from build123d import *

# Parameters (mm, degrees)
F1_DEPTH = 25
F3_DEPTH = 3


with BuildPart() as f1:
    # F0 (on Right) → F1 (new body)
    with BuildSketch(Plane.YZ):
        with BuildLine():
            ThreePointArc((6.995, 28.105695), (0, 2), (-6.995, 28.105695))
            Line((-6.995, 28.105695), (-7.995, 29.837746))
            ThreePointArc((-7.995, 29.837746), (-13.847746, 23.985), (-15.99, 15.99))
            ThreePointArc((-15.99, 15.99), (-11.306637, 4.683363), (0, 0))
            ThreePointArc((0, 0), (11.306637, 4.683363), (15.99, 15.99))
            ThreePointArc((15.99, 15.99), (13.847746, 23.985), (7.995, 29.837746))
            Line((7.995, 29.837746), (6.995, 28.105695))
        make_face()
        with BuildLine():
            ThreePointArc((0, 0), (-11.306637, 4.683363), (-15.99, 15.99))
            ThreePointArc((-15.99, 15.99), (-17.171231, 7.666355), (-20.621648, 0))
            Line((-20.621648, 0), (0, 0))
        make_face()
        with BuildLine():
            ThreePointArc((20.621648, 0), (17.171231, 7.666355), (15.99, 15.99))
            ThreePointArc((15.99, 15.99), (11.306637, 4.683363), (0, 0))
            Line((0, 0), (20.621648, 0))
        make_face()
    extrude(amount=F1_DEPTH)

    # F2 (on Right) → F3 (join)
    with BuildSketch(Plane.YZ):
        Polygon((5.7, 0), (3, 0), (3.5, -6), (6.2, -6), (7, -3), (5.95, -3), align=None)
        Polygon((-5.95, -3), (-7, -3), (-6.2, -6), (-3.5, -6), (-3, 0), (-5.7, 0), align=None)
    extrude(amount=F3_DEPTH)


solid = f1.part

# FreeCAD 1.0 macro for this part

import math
import FreeCAD as App
import Part
import Sketcher
Q = App.Units.Quantity

doc = App.newDocument("Part")
body = doc.addObject("PartDesign::Body", "Body")

sketch1 = body.newObject("Sketcher::SketchObject", "Sketch")
sketch1.AttachmentSupport = (doc.getObject("YZ_Plane"), [""])
sketch1.MapMode = "FlatFace"
sketch1.addGeometry(Part.ArcOfCircle(Part.Circle(App.Vector(0, 15.99, 0), App.Vector(0, 0, 1), 13.99), math.radians(120), math.radians(420)), False)
sketch1.addGeometry(Part.LineSegment(App.Vector(-6.995, 28.105695, 0), App.Vector(-7.995, 29.837746, 0)), False)
sketch1.addGeometry(Part.ArcOfCircle(Part.Circle(App.Vector(0, 15.99, 0), App.Vector(0, 0, 1), 15.99), math.radians(120.000001), math.radians(179.999998)), False)
sketch1.addGeometry(Part.ArcOfCircle(Part.Circle(App.Vector(-45.907231, 15.989997, 0), App.Vector(0, 0, 1), 29.917231), math.radians(-32.30828), math.radians(0.000006)), False)
sketch1.addGeometry(Part.LineSegment(App.Vector(-20.621648, 0, 0), App.Vector(20.621648, 0, 0)), False)
sketch1.addGeometry(Part.ArcOfCircle(Part.Circle(App.Vector(45.907231, 15.989997, 0), App.Vector(0, 0, 1), 29.917231), math.radians(179.999994), math.radians(212.30828)), False)
sketch1.addGeometry(Part.ArcOfCircle(Part.Circle(App.Vector(0, 15.99, 0), App.Vector(0, 0, 1), 15.99), math.radians(0.000002), math.radians(59.999999)), False)
sketch1.addGeometry(Part.LineSegment(App.Vector(7.995, 29.837746, 0), App.Vector(6.995, 28.105695, 0)), False)
sketch1.addConstraint(Sketcher.Constraint("Coincident", 0, 1, 1, 1))
sketch1.addConstraint(Sketcher.Constraint("Coincident", 1, 2, 2, 1))
sketch1.addConstraint(Sketcher.Constraint("Tangent", 2, 2, 3, 2))
sketch1.addConstraint(Sketcher.Constraint("Coincident", 3, 1, 4, 1))
sketch1.addConstraint(Sketcher.Constraint("Coincident", 4, 2, 5, 2))
sketch1.addConstraint(Sketcher.Constraint("Tangent", 5, 1, 6, 1))
sketch1.addConstraint(Sketcher.Constraint("Coincident", 6, 2, 7, 1))
sketch1.addConstraint(Sketcher.Constraint("Coincident", 7, 2, 0, 2))
sketch1.addConstraint(Sketcher.Constraint("Horizontal", 4))
sketch1.addConstraint(Sketcher.Constraint("Coincident", 2, 3, 0, 3))
sketch1.addConstraint(Sketcher.Constraint("Coincident", 6, 3, 0, 3))
sketch1.addConstraint(Sketcher.Constraint("Equal", 3, 5))
sketch1.addConstraint(Sketcher.Constraint("Equal", 2, 6))
sketch1.addConstraint(Sketcher.Constraint("Symmetric", 3, 1, 4, 2, -1, 1))
sketch1.addConstraint(Sketcher.Constraint("Symmetric", 1, 2, 6, 2, -2))
sketch1.addConstraint(Sketcher.Constraint("Horizontal", 6, 3, 2, 2))
sketch1.addConstraint(Sketcher.Constraint("Horizontal", 0, 1, 7, 2))
sketch1.addConstraint(Sketcher.Constraint("Angle", 1, Q("119.999997 deg")))
sketch1.addConstraint(Sketcher.Constraint("Radius", 0, 13.99))
sketch1.addConstraint(Sketcher.Constraint("Radius", 2, 15.99))
sketch1.addConstraint(Sketcher.Constraint("DistanceY", -1, 1, 0, 3, 15.99))
sketch1.addConstraint(Sketcher.Constraint("Radius", 3, 29.917231))
sketch1.addConstraint(Sketcher.Constraint("DistanceX", 0, 1, 6, 2, 14.99))
pad1 = body.newObject("PartDesign::Pad", "Pad")
pad1.Profile = sketch1
pad1.Length = 25

sketch2 = body.newObject("Sketcher::SketchObject", "Sketch001")
sketch2.AttachmentSupport = (doc.getObject("YZ_Plane"), [""])
sketch2.MapMode = "FlatFace"
sketch2.addGeometry(Part.LineSegment(App.Vector(5.7, 0, 0), App.Vector(3, 0, 0)), False)
sketch2.addGeometry(Part.LineSegment(App.Vector(3, 0, 0), App.Vector(3.5, -6, 0)), False)
sketch2.addGeometry(Part.LineSegment(App.Vector(3.5, -6, 0), App.Vector(6.2, -6, 0)), False)
sketch2.addGeometry(Part.LineSegment(App.Vector(6.2, -6, 0), App.Vector(7, -3, 0)), False)
sketch2.addGeometry(Part.LineSegment(App.Vector(7, -3, 0), App.Vector(5.95, -3, 0)), False)
sketch2.addGeometry(Part.LineSegment(App.Vector(5.95, -3, 0), App.Vector(5.7, 0, 0)), False)
sketch2.addGeometry(Part.LineSegment(App.Vector(-5.95, -3, 0), App.Vector(-7, -3, 0)), False)
sketch2.addGeometry(Part.LineSegment(App.Vector(-7, -3, 0), App.Vector(-6.2, -6, 0)), False)
sketch2.addGeometry(Part.LineSegment(App.Vector(-6.2, -6, 0), App.Vector(-3.5, -6, 0)), False)
sketch2.addGeometry(Part.LineSegment(App.Vector(-3.5, -6, 0), App.Vector(-3, 0, 0)), False)
sketch2.addGeometry(Part.LineSegment(App.Vector(-3, 0, 0), App.Vector(-5.7, 0, 0)), False)
sketch2.addGeometry(Part.LineSegment(App.Vector(-5.7, 0, 0), App.Vector(-5.95, -3, 0)), False)
sketch2.addConstraint(Sketcher.Constraint("Coincident", 0, 2, 1, 1))
sketch2.addConstraint(Sketcher.Constraint("Coincident", 1, 2, 2, 1))
sketch2.addConstraint(Sketcher.Constraint("Coincident", 2, 2, 3, 1))
sketch2.addConstraint(Sketcher.Constraint("Coincident", 3, 2, 4, 1))
sketch2.addConstraint(Sketcher.Constraint("Coincident", 4, 2, 5, 1))
sketch2.addConstraint(Sketcher.Constraint("Coincident", 5, 2, 0, 1))
sketch2.addConstraint(Sketcher.Constraint("Coincident", 6, 2, 7, 1))
sketch2.addConstraint(Sketcher.Constraint("Coincident", 7, 2, 8, 1))
sketch2.addConstraint(Sketcher.Constraint("Coincident", 8, 2, 9, 1))
sketch2.addConstraint(Sketcher.Constraint("Coincident", 9, 2, 10, 1))
sketch2.addConstraint(Sketcher.Constraint("Coincident", 10, 2, 11, 1))
sketch2.addConstraint(Sketcher.Constraint("Coincident", 11, 2, 6, 1))
sketch2.addConstraint(Sketcher.Constraint("Horizontal", 0))
sketch2.addConstraint(Sketcher.Constraint("Horizontal", 2))
sketch2.addConstraint(Sketcher.Constraint("Horizontal", 4))
sketch2.addConstraint(Sketcher.Constraint("Horizontal", 6))
sketch2.addConstraint(Sketcher.Constraint("Horizontal", 8))
sketch2.addConstraint(Sketcher.Constraint("Horizontal", 10))
sketch2.addConstraint(Sketcher.Constraint("Symmetric", 0, 2, 9, 2, -1, 1))
sketch2.addConstraint(Sketcher.Constraint("Symmetric", 3, 2, 6, 2, -2))
sketch2.addConstraint(Sketcher.Constraint("Symmetric", 2, 2, 7, 2, -2))
sketch2.addConstraint(Sketcher.Constraint("Symmetric", 5, 2, 10, 2, -2))
sketch2.addConstraint(Sketcher.Constraint("Parallel", 1, 5))
sketch2.addConstraint(Sketcher.Constraint("Parallel", 9, 11))
sketch2.addConstraint(Sketcher.Constraint("Equal", 0, 2))
sketch2.addConstraint(Sketcher.Constraint("Equal", 4, 6))
sketch2.addConstraint(Sketcher.Constraint("DistanceX", 0, 2, 0, 1, 2.7))
sketch2.addConstraint(Sketcher.Constraint("DistanceX", -1, 1, 0, 2, 3.0))
sketch2.addConstraint(Sketcher.Constraint("DistanceY", 1, 2, -1, 1, 6.0))
sketch2.addConstraint(Sketcher.Constraint("DistanceX", -1, 1, 3, 2, 7.0))
sketch2.addConstraint(Sketcher.Constraint("DistanceY", 3, 2, -1, 1, 3.0))
sketch2.addConstraint(Sketcher.Constraint("DistanceX", 8, 2, 1, 2, 7.0))
pad2 = body.newObject("PartDesign::Pad", "Pad001")
pad2.Profile = sketch2
pad2.Length = 3

doc.recompute()
